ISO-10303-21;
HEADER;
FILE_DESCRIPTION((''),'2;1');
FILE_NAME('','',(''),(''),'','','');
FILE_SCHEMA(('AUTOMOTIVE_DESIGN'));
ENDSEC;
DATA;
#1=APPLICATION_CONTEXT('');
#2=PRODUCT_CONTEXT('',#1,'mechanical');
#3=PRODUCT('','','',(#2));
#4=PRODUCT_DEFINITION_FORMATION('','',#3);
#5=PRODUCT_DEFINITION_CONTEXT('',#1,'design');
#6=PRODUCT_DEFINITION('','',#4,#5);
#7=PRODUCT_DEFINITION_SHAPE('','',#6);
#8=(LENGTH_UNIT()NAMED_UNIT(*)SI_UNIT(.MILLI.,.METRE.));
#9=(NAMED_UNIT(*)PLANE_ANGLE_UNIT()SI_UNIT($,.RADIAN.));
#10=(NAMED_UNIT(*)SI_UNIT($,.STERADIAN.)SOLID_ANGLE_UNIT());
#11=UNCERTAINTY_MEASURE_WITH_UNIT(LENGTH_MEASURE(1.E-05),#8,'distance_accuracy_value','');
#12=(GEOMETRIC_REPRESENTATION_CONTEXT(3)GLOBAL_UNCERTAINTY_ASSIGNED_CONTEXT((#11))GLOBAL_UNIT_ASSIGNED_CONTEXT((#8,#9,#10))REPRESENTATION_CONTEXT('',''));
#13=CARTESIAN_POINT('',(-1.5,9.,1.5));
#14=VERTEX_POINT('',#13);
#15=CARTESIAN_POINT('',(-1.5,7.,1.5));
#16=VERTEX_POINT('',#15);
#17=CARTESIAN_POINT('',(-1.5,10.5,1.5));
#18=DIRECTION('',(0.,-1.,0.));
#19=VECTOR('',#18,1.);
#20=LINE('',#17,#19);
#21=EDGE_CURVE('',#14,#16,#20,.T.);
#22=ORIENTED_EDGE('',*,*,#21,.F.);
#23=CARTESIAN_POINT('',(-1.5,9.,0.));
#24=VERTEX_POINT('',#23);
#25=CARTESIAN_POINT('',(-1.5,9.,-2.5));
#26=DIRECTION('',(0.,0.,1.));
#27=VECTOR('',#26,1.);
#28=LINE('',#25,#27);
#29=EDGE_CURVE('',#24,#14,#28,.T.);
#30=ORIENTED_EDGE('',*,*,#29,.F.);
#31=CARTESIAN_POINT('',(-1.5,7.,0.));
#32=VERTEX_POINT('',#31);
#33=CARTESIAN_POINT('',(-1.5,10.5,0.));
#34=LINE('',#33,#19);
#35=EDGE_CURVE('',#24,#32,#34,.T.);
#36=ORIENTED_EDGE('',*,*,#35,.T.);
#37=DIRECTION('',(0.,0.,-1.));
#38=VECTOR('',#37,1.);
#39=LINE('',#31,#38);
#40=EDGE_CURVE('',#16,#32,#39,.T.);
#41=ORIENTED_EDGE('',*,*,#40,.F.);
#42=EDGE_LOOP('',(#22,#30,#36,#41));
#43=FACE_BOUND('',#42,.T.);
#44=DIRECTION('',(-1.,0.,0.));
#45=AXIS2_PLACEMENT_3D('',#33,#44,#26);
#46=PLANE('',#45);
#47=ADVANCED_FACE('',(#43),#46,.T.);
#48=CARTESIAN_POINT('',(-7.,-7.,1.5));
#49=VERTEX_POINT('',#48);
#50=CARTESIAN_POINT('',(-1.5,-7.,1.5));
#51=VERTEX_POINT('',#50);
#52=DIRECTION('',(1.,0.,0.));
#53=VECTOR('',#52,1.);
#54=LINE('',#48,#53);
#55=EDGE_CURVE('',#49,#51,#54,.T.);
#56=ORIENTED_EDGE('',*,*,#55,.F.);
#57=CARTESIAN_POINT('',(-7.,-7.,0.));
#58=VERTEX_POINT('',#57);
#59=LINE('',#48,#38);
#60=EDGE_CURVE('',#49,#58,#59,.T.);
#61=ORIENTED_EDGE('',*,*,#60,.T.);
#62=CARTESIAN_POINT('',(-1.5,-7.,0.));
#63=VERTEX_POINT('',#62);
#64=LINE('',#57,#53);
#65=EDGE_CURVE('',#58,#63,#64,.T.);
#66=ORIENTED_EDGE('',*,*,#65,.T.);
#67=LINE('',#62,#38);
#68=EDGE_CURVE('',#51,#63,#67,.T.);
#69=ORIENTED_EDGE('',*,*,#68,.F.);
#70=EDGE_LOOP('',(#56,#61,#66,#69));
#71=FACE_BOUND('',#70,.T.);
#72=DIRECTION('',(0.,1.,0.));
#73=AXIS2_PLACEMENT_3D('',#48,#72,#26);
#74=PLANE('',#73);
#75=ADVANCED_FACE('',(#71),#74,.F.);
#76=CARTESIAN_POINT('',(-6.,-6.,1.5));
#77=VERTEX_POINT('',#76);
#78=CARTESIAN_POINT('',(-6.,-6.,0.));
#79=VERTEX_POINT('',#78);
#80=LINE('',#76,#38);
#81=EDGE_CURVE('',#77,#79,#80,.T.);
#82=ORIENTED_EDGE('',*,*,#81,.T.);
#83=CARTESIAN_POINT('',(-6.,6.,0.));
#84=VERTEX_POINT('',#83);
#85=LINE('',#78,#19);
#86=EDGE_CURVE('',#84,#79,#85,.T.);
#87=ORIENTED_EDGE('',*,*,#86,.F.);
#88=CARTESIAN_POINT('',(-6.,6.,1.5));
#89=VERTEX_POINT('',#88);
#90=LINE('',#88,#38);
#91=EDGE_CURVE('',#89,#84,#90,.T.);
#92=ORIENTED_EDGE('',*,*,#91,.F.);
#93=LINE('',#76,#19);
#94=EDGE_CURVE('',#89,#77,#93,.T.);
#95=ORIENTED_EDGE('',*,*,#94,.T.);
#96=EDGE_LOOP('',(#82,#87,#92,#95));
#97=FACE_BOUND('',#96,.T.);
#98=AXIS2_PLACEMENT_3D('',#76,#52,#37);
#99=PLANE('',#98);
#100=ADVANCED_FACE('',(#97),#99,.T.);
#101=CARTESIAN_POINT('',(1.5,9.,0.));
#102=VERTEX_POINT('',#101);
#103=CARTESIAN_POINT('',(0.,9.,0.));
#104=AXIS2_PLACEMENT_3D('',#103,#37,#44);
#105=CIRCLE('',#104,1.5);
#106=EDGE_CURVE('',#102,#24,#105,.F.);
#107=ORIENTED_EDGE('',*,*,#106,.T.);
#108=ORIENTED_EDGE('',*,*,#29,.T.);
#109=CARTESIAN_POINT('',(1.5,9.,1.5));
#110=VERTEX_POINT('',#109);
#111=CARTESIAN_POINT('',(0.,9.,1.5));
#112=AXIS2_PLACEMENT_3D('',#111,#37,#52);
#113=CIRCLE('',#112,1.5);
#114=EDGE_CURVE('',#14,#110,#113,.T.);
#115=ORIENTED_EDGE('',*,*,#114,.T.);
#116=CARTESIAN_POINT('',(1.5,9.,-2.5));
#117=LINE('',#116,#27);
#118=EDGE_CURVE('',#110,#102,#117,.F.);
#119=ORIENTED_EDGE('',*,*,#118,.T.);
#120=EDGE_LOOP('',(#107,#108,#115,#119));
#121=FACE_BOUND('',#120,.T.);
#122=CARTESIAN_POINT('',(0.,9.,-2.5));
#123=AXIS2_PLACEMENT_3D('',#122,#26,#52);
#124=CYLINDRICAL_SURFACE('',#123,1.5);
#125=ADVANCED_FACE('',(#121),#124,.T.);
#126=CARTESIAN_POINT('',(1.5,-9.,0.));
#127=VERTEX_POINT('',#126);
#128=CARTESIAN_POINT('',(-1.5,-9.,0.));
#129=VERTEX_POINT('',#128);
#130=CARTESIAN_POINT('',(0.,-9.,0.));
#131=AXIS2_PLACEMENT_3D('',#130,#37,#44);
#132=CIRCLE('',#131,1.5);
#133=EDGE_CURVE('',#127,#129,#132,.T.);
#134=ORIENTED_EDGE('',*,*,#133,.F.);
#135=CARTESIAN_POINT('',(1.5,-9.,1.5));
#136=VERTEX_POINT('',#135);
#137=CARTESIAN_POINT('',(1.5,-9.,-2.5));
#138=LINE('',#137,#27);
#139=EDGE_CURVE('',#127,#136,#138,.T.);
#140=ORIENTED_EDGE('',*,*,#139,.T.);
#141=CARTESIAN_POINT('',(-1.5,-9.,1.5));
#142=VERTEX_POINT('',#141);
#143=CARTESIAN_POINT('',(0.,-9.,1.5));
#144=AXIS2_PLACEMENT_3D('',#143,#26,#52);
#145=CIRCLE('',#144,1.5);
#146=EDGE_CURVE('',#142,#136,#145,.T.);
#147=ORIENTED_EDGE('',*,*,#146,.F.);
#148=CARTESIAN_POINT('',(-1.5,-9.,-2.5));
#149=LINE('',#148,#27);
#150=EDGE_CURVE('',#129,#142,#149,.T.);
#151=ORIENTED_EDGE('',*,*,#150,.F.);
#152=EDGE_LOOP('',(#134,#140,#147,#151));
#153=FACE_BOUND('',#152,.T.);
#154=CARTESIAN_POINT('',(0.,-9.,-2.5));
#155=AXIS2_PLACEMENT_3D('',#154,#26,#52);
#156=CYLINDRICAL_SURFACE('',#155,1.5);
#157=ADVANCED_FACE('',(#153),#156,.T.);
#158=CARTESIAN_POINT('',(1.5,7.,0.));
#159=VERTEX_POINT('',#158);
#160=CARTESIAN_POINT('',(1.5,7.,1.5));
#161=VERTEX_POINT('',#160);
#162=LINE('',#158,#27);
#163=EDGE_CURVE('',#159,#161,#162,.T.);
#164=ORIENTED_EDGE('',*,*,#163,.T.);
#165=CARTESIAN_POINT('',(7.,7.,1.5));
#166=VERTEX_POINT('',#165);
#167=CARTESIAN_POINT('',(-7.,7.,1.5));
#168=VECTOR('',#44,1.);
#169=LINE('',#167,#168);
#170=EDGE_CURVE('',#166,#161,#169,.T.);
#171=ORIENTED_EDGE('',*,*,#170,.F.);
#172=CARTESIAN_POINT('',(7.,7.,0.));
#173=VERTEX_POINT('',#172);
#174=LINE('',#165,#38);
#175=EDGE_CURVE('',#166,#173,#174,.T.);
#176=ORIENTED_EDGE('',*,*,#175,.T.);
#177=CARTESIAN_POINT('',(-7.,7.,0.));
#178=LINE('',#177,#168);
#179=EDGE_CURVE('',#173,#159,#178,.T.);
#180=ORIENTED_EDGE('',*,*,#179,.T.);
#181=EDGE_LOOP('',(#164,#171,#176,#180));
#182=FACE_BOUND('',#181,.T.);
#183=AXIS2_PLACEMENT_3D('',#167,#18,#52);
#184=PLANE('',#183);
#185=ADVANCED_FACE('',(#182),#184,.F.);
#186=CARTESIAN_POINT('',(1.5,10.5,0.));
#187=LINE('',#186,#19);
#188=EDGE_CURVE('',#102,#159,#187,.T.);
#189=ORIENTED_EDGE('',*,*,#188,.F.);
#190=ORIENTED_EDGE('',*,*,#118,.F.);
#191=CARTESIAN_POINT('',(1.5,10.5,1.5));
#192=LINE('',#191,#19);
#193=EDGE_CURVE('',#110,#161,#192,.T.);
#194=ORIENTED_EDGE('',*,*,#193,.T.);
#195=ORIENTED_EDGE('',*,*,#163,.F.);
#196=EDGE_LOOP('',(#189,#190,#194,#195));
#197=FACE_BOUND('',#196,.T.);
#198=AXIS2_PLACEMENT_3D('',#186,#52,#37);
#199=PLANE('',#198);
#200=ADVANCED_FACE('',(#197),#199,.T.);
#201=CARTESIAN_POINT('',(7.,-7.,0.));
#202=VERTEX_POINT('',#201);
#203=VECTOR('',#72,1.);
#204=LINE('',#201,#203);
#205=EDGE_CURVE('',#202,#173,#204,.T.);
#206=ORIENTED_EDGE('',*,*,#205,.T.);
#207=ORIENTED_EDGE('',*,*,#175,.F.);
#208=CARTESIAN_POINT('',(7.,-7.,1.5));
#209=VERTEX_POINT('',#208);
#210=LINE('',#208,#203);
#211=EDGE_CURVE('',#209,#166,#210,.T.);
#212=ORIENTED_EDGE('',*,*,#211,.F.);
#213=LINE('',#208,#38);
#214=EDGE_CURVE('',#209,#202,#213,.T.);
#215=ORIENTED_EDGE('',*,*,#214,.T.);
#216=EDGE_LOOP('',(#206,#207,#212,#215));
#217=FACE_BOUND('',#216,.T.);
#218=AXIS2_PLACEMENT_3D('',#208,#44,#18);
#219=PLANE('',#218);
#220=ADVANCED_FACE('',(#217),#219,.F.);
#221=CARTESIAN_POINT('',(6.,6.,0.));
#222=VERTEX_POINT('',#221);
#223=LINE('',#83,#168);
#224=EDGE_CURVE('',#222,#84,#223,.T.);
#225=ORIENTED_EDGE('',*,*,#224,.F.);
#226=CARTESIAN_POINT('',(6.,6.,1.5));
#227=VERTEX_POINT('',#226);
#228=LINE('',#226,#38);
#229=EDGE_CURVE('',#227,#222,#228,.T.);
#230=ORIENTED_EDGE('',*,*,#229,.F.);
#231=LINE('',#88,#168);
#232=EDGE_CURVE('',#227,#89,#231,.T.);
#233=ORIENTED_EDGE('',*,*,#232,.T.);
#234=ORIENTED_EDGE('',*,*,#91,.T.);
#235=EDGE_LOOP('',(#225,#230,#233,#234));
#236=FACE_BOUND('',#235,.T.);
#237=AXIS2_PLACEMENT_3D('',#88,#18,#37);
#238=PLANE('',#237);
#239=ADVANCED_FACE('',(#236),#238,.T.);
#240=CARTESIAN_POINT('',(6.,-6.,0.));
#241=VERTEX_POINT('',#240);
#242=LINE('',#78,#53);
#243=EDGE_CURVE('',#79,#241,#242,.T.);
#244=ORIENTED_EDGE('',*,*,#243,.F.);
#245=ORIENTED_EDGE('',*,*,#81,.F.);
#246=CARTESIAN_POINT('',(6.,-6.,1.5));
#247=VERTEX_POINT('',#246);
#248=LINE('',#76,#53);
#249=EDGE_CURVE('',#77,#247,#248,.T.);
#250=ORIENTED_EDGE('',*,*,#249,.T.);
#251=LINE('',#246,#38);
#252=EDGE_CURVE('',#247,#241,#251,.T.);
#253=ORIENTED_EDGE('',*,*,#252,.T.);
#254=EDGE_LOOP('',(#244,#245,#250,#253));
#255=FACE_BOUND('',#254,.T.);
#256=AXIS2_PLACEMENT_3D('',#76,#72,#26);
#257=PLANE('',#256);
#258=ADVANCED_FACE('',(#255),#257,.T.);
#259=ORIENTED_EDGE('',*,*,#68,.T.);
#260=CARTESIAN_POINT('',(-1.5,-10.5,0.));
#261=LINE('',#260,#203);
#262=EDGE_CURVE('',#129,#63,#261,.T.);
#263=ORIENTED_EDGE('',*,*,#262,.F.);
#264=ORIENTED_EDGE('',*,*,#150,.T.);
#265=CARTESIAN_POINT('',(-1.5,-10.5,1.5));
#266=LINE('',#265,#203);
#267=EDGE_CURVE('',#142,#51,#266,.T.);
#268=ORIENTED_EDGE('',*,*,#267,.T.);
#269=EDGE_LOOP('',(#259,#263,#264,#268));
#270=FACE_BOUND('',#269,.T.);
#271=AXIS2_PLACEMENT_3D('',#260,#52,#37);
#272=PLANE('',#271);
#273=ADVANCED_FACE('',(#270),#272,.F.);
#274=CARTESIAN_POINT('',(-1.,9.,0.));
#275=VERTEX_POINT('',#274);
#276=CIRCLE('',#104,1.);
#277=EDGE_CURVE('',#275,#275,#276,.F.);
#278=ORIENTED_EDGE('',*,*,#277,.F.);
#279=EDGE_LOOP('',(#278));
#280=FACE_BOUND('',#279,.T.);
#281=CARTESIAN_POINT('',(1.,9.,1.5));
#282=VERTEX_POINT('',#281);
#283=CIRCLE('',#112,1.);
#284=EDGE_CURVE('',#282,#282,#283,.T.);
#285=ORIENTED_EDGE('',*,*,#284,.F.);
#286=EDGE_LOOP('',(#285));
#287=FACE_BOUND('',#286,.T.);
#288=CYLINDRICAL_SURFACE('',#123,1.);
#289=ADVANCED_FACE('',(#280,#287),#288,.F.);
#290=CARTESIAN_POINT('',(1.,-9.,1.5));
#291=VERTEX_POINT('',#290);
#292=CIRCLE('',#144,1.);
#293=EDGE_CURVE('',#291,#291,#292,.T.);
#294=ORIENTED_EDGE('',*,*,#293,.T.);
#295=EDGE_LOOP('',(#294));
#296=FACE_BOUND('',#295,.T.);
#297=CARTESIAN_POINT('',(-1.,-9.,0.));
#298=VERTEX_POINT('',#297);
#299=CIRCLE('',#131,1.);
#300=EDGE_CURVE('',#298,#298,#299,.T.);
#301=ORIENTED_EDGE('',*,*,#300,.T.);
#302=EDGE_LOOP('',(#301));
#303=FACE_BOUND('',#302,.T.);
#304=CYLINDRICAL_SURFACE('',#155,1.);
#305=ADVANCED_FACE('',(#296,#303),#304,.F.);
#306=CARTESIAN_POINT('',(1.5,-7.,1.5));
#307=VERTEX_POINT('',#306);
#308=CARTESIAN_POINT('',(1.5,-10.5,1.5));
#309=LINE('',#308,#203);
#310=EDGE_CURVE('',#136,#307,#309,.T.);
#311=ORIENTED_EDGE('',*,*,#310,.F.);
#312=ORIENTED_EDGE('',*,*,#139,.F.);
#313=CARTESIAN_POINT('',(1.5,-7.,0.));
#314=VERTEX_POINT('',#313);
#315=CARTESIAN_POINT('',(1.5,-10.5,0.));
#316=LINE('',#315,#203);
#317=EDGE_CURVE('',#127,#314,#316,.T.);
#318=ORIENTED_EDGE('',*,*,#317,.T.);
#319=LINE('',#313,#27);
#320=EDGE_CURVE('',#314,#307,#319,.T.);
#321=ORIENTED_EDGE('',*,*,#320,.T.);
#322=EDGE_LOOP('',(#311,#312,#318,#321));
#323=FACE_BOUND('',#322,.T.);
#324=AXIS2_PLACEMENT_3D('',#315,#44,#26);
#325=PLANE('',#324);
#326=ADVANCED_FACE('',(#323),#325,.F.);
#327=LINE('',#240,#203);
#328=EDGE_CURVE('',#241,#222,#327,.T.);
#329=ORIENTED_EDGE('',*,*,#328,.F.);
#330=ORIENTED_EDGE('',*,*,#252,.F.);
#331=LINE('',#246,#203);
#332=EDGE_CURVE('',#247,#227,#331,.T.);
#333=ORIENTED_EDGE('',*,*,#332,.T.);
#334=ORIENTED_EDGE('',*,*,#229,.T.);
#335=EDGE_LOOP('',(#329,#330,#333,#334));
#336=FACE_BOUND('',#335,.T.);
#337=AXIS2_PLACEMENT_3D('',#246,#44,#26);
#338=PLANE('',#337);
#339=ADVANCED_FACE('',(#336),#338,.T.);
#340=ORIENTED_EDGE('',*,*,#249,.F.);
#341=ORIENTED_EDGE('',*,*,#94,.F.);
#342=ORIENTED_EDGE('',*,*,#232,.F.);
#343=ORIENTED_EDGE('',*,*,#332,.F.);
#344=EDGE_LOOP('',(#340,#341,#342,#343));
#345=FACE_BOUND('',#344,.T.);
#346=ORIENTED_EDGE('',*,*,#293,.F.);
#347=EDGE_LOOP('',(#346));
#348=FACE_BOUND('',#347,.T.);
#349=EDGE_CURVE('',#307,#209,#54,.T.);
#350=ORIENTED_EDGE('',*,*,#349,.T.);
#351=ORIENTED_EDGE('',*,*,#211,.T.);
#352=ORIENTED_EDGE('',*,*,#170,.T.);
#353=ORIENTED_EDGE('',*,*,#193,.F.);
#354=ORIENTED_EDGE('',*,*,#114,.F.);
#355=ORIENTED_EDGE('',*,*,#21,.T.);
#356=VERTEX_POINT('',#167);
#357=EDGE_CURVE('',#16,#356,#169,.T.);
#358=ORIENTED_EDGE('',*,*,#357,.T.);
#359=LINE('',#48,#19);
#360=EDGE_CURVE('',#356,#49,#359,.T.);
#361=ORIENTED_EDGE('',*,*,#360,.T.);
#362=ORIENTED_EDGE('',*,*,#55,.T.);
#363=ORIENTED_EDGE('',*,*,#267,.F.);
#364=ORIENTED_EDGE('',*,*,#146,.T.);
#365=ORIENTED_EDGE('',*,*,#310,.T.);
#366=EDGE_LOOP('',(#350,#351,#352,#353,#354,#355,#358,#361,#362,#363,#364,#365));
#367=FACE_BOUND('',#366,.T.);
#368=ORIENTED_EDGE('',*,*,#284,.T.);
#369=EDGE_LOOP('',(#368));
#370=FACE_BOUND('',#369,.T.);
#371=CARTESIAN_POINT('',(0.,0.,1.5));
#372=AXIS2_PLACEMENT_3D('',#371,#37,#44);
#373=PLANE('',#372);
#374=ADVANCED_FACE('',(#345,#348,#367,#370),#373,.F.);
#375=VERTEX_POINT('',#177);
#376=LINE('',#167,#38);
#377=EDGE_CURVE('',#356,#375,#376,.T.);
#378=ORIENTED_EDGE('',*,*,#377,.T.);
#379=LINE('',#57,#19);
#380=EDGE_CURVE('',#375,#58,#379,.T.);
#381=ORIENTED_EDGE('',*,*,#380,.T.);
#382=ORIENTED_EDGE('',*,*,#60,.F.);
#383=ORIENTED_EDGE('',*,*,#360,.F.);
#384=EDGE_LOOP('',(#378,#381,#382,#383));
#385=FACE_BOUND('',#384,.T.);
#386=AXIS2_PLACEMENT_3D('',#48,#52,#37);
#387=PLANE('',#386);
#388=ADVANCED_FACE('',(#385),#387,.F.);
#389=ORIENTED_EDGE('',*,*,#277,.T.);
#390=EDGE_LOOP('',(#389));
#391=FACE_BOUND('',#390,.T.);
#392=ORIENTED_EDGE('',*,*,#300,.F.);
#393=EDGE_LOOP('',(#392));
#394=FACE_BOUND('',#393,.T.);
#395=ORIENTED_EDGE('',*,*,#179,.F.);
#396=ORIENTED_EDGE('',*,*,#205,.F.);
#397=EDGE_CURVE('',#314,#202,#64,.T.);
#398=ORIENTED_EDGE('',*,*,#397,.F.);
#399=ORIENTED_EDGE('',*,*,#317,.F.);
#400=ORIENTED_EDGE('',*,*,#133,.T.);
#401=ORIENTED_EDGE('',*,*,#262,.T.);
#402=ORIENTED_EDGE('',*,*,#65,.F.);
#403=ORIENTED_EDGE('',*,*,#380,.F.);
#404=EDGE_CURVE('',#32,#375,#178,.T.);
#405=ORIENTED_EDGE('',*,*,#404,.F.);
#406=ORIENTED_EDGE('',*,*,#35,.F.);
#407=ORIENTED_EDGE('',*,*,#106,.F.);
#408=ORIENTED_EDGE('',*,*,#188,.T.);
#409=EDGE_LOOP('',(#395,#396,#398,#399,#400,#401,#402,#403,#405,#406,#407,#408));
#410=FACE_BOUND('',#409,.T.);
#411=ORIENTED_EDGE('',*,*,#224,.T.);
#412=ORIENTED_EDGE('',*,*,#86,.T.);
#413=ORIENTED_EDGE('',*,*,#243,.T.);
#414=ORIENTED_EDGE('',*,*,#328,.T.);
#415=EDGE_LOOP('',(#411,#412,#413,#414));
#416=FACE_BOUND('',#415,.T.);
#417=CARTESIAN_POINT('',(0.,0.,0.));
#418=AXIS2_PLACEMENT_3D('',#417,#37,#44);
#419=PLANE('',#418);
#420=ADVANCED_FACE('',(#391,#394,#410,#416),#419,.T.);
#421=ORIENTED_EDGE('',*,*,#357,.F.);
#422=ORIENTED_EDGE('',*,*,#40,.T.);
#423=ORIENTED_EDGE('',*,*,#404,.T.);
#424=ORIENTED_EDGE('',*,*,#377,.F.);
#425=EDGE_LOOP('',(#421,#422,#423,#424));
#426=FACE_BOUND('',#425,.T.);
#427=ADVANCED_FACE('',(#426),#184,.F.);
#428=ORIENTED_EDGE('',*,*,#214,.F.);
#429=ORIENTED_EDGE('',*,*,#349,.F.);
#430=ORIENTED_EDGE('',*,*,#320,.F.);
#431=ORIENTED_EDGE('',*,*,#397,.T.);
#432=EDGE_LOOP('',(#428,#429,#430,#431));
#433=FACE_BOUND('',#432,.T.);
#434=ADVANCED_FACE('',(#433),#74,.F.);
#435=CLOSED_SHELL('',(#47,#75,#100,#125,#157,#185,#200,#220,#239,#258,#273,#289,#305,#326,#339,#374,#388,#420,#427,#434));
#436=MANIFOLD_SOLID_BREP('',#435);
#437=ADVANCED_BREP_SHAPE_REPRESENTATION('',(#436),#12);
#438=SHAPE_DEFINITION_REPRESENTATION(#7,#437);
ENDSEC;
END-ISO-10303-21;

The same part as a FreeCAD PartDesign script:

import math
import FreeCAD as App
import Part
import Sketcher
from FreeCAD import Vector
Q = App.Units.Quantity

doc = App.newDocument("Part")
body = doc.addObject("PartDesign::Body", "Body")

sketch1 = body.newObject("Sketcher::SketchObject", "Sketch")
sketch1.AttachmentSupport = (doc.getObject("XY_Plane"), [""])
sketch1.MapMode = "FlatFace"
sketch1.addGeometry([
    Part.LineSegment(Vector(-7, 7, 0), Vector(-7, -7, 0)),
    Part.LineSegment(Vector(-7, -7, 0), Vector(7, -7, 0)),
    Part.LineSegment(Vector(7, -7, 0), Vector(7, 7, 0)),
    Part.LineSegment(Vector(7, 7, 0), Vector(-7, 7, 0)),
    Part.LineSegment(Vector(6, -6, 0), Vector(-6, -6, 0)),
    Part.LineSegment(Vector(-6, -6, 0), Vector(-6, 6, 0)),
    Part.LineSegment(Vector(-6, 6, 0), Vector(6, 6, 0)),
    Part.LineSegment(Vector(6, 6, 0), Vector(6, -6, 0)),
], False)
sketch1.addConstraint([
    Sketcher.Constraint("Coincident", 0, 2, 1, 1),
    Sketcher.Constraint("Coincident", 1, 2, 2, 1),
    Sketcher.Constraint("Coincident", 2, 2, 3, 1),
    Sketcher.Constraint("Coincident", 3, 2, 0, 1),
    Sketcher.Constraint("Coincident", 4, 2, 5, 1),
    Sketcher.Constraint("Coincident", 5, 2, 6, 1),
    Sketcher.Constraint("Coincident", 6, 2, 7, 1),
    Sketcher.Constraint("Coincident", 7, 2, 4, 1),
    Sketcher.Constraint("Vertical", 0),
    Sketcher.Constraint("Horizontal", 1),
    Sketcher.Constraint("Vertical", 2),
    Sketcher.Constraint("Horizontal", 3),
    Sketcher.Constraint("Horizontal", 4),
    Sketcher.Constraint("Vertical", 5),
    Sketcher.Constraint("Horizontal", 6),
    Sketcher.Constraint("Vertical", 7),
    Sketcher.Constraint("Symmetric", 0, 2, 2, 2, -1, 1),
    Sketcher.Constraint("Symmetric", 4, 2, 6, 2, -1, 1),
    Sketcher.Constraint("Equal", 3, 0),
    Sketcher.Constraint("Equal", 6, 5),
    Sketcher.Constraint("DistanceX", 1, 1, 1, 2, Q("14 mm")),
    Sketcher.Constraint("DistanceX", 4, 2, 4, 1, Q("12 mm")),
])
pad1 = body.newObject("PartDesign::Pad", "Pad")
pad1.Profile = sketch1
pad1.Length = 1.5

sketch2 = body.newObject("Sketcher::SketchObject", "Sketch001")
sketch2.AttachmentSupport = (doc.getObject("XZ_Plane"), [""])
sketch2.MapMode = "FlatFace"
sketch2.AttachmentOffset = App.Placement(Vector(0, 0, 7), App.Rotation())
sketch2.addGeometry([
    Part.LineSegment(Vector(-1.5, 1.5, 0), Vector(-1.5, 0, 0)),
    Part.LineSegment(Vector(-1.5, 0, 0), Vector(1.5, 0, 0)),
    Part.LineSegment(Vector(1.5, 0, 0), Vector(1.5, 1.5, 0)),
    Part.LineSegment(Vector(1.5, 1.5, 0), Vector(-1.5, 1.5, 0)),
], False)
sketch2.addConstraint([
    Sketcher.Constraint("Coincident", 0, 2, 1, 1),
    Sketcher.Constraint("Coincident", 1, 2, 2, 1),
    Sketcher.Constraint("Coincident", 2, 2, 3, 1),
    Sketcher.Constraint("Coincident", 3, 2, 0, 1),
    Sketcher.Constraint("Vertical", 0),
    Sketcher.Constraint("Horizontal", 1),
    Sketcher.Constraint("Vertical", 2),
    Sketcher.Constraint("Horizontal", 3),
    Sketcher.Constraint("Symmetric", 0, 2, 1, 2, -1, 1),
    Sketcher.Constraint("DistanceX", 1, 1, 1, 2, Q("3 mm")),
    Sketcher.Constraint("DistanceY", 0, 2, 0, 1, Q("1.5 mm")),
])
pad2 = body.newObject("PartDesign::Pad", "Pad001")
pad2.Profile = sketch2
pad2.Length = 3.5

sketch3 = body.newObject("Sketcher::SketchObject", "Sketch002")
sketch3.AttachmentSupport = (doc.getObject("XY_Plane"), [""])
sketch3.MapMode = "FlatFace"
sketch3.AttachmentOffset = App.Placement(Vector(0, 0, 1.5), App.Rotation())
sketch3.addGeometry([
    Part.ArcOfCircle(Part.Circle(Vector(0, -9, 0), Vector(0, 0, 1), 1.5), math.radians(180), math.radians(270)),
    Part.LineSegment(Vector(-1.5, -9, 0), Vector(-1.5, -10.5, 0)),
    Part.LineSegment(Vector(-1.5, -10.5, 0), Vector(0, -10.5, 0)),
    Part.LineSegment(Vector(1.5, -10.5, 0), Vector(1.5, -9, 0)),
    Part.ArcOfCircle(Part.Circle(Vector(0, -9, 0), Vector(0, 0, 1), 1.5), math.radians(-90), math.radians(0)),
    Part.LineSegment(Vector(0, -10.5, 0), Vector(1.5, -10.5, 0)),
], False)
sketch3.addConstraint([
    Sketcher.Constraint("Tangent", 0, 1, 1, 1),
    Sketcher.Constraint("Coincident", 1, 2, 2, 1),
    Sketcher.Constraint("Tangent", 2, 2, 0, 2),
    Sketcher.Constraint("Tangent", 3, 2, 4, 2),
    Sketcher.Constraint("Tangent", 4, 1, 5, 1),
    Sketcher.Constraint("Coincident", 5, 2, 3, 1),
    Sketcher.Constraint("Vertical", 1),
    Sketcher.Constraint("Horizontal", 2),
    Sketcher.Constraint("Vertical", 3),
    Sketcher.Constraint("Horizontal", 5),
    Sketcher.Constraint("Coincident", 4, 3, 0, 3),
    Sketcher.Constraint("Equal", 0, 4),
    Sketcher.Constraint("PointOnObject", 0, 3, -2),
    Sketcher.Constraint("Radius", 0, Q("1.5 mm")),
    Sketcher.Constraint("DistanceY", 0, 3, -1, 1, Q("9 mm")),
])
pocket1 = body.newObject("PartDesign::Pocket", "Pocket")
pocket1.Profile = sketch3
pocket1.Length = 4

sketch4 = body.newObject("Sketcher::SketchObject", "Sketch003")
sketch4.AttachmentSupport = (doc.getObject("XY_Plane"), [""])
sketch4.MapMode = "FlatFace"
sketch4.AttachmentOffset = App.Placement(Vector(0, 0, 1.5), App.Rotation())
sketch4.addGeometry(Part.Circle(Vector(0, -9, 0), Vector(0, 0, 1), 1), False)
sketch4.addConstraint([
    Sketcher.Constraint("PointOnObject", 0, 3, -2),
    Sketcher.Constraint("Diameter", 0, Q("2 mm")),
    Sketcher.Constraint("DistanceY", 0, 3, -1, 1, Q("9 mm")),
])
pocket2 = body.newObject("PartDesign::Pocket", "Pocket001")
pocket2.Profile = sketch4
pocket2.Length = 4
doc.recompute()

mirrored = body.newObject("PartDesign::Mirrored", "Mirrored")
mirrored.Originals = [pad2, pocket1, pocket2]
mirrored.MirrorPlane = (doc.getObject("XZ_Plane"), [""])
body.Tip = mirrored

doc.recompute()
